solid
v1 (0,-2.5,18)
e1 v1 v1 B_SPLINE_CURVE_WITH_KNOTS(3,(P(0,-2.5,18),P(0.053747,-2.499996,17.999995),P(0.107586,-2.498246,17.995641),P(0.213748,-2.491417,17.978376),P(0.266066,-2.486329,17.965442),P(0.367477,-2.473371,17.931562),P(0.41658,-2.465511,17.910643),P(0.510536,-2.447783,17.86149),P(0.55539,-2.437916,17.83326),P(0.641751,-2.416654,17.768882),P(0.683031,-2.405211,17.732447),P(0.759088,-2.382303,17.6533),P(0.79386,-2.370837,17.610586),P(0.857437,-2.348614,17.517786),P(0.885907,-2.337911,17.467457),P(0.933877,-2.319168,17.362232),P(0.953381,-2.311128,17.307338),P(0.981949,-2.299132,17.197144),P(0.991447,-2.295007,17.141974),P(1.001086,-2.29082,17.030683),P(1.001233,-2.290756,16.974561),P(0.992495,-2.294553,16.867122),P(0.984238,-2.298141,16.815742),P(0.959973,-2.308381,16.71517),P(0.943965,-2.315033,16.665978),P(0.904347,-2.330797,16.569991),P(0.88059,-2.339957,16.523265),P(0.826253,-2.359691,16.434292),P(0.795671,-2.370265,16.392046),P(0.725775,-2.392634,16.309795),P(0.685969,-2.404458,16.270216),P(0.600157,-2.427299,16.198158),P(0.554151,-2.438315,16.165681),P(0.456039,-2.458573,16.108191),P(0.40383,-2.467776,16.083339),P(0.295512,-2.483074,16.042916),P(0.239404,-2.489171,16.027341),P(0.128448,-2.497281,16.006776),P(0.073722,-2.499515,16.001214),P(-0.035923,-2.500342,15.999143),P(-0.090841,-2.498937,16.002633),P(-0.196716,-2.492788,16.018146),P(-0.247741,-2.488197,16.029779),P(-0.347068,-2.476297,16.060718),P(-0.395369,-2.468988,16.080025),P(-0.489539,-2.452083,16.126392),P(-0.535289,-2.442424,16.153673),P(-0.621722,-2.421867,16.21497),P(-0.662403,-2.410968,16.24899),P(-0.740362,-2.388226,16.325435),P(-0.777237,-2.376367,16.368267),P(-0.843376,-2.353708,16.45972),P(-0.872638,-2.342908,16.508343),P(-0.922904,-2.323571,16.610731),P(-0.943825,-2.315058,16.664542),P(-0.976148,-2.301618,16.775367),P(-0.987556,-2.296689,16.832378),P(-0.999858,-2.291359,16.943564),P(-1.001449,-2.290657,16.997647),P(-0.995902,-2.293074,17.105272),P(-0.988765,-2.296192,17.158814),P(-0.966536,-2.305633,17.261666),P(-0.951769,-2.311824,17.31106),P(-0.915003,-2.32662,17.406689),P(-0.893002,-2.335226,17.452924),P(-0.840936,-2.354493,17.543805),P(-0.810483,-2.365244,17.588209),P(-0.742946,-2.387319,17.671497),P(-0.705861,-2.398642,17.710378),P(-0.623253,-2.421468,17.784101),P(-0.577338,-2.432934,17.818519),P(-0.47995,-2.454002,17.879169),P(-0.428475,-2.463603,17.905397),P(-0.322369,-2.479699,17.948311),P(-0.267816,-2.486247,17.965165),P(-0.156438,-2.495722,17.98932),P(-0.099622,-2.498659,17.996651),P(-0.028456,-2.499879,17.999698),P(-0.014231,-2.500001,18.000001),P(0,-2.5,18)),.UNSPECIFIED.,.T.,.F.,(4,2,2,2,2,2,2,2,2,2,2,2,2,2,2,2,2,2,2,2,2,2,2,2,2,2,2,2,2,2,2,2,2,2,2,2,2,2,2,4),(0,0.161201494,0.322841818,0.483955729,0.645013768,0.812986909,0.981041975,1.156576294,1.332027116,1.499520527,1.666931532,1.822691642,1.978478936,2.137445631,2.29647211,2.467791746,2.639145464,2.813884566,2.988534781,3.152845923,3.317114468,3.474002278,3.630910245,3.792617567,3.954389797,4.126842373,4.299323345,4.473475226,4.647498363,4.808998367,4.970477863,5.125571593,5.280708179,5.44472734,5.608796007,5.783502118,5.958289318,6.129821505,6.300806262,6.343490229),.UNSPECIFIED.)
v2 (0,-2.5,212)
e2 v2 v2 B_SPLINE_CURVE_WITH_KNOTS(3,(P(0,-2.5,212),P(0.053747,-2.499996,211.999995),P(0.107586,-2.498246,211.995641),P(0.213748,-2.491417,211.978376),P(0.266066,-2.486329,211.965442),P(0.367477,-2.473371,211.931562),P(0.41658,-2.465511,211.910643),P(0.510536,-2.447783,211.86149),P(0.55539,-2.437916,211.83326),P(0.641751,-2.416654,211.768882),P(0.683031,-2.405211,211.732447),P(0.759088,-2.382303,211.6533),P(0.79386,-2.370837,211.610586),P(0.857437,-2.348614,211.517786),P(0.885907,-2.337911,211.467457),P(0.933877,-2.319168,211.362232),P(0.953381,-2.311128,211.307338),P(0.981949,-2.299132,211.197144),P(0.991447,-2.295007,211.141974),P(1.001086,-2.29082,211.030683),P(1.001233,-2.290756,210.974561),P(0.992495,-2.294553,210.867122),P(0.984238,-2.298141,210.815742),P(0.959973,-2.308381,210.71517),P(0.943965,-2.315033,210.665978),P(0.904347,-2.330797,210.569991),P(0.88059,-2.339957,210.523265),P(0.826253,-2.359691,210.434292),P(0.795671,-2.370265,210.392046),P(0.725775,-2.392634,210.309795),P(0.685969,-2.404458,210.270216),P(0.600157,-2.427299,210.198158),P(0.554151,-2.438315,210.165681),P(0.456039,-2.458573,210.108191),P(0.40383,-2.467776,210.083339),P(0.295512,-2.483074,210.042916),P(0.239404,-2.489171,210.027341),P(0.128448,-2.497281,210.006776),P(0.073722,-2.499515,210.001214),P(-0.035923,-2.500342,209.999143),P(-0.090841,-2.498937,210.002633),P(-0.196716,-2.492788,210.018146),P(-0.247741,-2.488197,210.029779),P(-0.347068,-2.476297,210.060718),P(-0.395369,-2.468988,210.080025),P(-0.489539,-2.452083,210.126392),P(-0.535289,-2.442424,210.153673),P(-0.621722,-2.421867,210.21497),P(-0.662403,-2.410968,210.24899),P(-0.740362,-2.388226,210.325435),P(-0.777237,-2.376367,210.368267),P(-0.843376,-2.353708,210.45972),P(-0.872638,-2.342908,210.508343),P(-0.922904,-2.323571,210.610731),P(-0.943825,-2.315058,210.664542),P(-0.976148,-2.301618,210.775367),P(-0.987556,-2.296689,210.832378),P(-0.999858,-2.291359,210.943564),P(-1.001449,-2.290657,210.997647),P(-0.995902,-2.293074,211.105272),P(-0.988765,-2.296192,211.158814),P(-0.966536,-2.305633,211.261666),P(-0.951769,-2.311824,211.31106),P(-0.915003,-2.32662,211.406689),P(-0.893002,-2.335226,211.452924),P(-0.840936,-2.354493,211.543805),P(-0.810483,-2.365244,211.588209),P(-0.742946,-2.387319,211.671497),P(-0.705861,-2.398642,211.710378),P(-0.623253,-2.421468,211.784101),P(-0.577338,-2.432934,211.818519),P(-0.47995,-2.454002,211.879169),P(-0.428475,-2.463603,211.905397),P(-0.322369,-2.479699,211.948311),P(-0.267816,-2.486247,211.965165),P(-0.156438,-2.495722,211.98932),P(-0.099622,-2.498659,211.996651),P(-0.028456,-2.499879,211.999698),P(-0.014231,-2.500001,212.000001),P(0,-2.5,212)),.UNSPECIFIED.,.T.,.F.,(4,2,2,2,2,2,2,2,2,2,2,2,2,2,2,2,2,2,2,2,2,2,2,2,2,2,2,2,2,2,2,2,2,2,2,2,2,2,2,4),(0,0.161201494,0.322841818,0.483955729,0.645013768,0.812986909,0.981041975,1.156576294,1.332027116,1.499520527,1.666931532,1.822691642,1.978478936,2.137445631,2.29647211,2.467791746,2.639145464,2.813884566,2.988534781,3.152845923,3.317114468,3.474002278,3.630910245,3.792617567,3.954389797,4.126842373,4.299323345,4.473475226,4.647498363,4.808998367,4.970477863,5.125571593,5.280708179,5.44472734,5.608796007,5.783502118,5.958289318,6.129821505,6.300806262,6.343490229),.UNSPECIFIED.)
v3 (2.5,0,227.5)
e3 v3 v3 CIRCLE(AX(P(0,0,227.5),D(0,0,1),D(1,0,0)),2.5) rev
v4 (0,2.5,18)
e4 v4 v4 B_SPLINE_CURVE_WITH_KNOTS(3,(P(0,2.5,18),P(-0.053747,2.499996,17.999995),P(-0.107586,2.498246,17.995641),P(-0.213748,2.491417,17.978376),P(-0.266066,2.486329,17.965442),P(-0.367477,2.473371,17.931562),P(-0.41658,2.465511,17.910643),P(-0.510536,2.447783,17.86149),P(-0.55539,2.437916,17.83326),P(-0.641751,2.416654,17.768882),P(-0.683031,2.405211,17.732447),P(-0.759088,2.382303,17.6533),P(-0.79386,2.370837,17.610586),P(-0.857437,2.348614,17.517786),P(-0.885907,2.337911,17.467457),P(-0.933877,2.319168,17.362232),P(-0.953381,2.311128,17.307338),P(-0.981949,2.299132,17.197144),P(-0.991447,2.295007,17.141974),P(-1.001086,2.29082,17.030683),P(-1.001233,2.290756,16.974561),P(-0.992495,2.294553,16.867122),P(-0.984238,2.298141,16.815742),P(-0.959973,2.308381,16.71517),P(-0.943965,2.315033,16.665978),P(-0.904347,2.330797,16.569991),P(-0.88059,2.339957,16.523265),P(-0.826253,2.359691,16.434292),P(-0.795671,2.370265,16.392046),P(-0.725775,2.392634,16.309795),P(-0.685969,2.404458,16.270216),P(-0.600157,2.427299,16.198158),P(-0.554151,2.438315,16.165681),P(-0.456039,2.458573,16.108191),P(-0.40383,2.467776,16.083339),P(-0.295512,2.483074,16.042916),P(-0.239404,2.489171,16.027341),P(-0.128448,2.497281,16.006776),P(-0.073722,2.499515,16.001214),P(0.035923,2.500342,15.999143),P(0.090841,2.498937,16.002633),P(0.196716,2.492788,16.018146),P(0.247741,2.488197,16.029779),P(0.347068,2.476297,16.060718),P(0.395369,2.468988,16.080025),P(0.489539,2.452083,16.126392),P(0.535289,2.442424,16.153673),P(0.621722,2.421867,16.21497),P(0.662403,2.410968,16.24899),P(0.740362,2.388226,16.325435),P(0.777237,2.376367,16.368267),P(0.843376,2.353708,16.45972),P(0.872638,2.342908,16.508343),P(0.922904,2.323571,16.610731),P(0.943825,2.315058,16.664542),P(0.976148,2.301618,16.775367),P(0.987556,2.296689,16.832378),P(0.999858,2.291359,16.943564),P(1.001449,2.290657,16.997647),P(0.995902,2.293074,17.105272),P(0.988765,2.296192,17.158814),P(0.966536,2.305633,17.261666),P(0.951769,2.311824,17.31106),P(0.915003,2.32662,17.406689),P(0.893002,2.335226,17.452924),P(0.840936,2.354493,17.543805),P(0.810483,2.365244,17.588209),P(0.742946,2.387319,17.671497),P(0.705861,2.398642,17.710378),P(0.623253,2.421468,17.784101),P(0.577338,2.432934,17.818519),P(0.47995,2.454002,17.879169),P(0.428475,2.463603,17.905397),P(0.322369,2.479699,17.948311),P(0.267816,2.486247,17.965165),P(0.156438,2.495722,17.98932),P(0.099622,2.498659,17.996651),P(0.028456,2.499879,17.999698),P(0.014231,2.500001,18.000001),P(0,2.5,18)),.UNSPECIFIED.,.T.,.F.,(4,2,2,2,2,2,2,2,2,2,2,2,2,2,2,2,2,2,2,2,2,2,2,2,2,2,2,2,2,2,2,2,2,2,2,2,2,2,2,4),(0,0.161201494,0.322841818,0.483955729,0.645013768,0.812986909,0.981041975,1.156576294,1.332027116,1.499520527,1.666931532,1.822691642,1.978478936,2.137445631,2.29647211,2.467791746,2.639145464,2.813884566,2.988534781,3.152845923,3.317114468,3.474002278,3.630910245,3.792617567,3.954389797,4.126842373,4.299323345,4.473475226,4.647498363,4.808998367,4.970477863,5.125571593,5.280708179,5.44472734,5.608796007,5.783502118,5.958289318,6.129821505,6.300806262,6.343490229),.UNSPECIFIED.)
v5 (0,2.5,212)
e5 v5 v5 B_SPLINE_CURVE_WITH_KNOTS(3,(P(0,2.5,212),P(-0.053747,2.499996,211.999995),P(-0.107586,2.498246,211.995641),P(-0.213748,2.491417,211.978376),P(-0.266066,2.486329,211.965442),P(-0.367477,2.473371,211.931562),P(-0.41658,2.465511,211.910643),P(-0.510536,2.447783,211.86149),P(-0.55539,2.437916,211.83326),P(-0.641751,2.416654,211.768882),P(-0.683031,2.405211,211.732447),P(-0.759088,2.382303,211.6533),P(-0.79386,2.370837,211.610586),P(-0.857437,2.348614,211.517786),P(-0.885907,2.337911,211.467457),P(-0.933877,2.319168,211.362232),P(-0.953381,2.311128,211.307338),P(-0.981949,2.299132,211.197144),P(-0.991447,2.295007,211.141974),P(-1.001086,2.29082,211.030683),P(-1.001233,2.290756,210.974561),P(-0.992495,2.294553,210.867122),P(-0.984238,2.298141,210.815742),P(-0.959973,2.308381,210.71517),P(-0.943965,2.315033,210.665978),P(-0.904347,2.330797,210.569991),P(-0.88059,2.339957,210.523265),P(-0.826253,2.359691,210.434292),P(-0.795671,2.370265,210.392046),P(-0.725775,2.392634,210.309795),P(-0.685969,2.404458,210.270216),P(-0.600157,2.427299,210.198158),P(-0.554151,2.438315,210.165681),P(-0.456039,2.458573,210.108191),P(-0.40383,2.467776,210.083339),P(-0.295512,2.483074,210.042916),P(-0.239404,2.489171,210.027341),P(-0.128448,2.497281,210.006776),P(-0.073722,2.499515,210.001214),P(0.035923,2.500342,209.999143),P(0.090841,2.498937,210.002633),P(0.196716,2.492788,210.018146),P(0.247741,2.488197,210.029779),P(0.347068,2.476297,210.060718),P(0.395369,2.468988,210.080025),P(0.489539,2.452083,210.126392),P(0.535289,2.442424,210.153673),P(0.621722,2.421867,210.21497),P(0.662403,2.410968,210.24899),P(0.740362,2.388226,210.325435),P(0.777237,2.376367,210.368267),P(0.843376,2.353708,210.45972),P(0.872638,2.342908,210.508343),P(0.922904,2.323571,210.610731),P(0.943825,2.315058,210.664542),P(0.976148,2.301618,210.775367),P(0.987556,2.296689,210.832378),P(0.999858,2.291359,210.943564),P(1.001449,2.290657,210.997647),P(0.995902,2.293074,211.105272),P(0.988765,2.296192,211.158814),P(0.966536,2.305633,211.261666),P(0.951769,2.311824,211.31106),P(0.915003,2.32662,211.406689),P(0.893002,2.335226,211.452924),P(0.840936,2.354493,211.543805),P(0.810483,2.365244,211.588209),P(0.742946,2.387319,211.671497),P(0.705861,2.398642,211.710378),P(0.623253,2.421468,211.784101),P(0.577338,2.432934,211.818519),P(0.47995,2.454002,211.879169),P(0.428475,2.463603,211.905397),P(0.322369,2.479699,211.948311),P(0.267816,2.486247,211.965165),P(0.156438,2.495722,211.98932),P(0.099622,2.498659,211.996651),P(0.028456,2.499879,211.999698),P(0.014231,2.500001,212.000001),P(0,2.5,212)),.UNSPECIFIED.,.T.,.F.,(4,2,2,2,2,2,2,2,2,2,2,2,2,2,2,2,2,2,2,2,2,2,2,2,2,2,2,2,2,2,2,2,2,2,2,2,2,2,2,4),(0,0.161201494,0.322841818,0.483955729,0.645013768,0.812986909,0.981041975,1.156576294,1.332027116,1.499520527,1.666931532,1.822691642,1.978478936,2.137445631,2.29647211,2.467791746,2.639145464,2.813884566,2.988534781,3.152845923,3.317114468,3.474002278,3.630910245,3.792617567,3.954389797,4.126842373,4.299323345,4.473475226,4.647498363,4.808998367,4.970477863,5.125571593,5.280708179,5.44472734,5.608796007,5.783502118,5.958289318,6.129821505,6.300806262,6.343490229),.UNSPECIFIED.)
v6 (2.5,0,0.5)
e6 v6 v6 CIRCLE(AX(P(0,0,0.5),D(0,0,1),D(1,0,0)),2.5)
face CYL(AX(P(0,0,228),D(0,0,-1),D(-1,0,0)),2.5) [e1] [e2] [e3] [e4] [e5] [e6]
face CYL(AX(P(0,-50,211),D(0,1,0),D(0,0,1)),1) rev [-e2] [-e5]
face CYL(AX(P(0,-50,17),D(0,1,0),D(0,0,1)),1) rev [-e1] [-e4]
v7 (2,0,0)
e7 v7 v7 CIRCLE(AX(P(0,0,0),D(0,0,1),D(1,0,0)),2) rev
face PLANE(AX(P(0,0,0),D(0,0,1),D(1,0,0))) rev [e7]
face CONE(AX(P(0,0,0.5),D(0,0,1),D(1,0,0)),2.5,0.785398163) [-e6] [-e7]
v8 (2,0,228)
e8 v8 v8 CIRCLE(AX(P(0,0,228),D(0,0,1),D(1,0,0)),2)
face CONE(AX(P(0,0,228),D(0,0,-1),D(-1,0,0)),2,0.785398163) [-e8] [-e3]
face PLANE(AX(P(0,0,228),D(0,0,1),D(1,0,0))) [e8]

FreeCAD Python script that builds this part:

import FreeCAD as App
import Part
import Sketcher
Q = App.Units.Quantity


def edges_at(feature, points):
    """Names of the edges that pass closest to the given points."""
    edges = feature.Shape.Edges
    near = lambda p: min(range(len(edges)), key=lambda i: edges[i].distToShape(Part.Vertex(*p))[0])
    return sorted({f"Edge{near(p) + 1}" for p in points})

doc = App.newDocument("Part")
body = doc.addObject("PartDesign::Body", "Body")

# Sketch on XY plane
sketch1 = doc.addObject("Sketcher::SketchObject", "Sketch")
body.addObject(sketch1)
sketch1.AttachmentSupport = (doc.XY_Plane, [""])
sketch1.MapMode = "FlatFace"
sketch1.addGeometry(Part.Circle(App.Vector(0, 0, 0), App.Vector(0, 0, 1), 2.5), False)
sketch1.addConstraint([
    Sketcher.Constraint("Coincident", 0, 3, -1, 1),
    Sketcher.Constraint("Diameter", 0, Q("5 mm")),
])
pad1 = doc.addObject("PartDesign::Pad", "Pad")
body.addObject(pad1)
pad1.Profile = sketch1
pad1.Length = 228
doc.recompute()

chamfer = doc.addObject("PartDesign::Chamfer", "Chamfer")
body.addObject(chamfer)
chamfer.Base = (pad1, edges_at(pad1, [(-2.5, 0, 0), (-2.5, 0, 228)]))
chamfer.Size = 0.5

# Sketch on XZ plane
sketch2 = doc.addObject("Sketcher::SketchObject", "Sketch001")
body.addObject(sketch2)
sketch2.AttachmentSupport = (doc.XZ_Plane, [""])
sketch2.MapMode = "FlatFace"
sketch2.addGeometry([
    Part.Circle(App.Vector(0, 17, 0), App.Vector(0, 0, 1), 1),
    Part.Circle(App.Vector(0, 211, 0), App.Vector(0, 0, 1), 1),
], False)
sketch2.addConstraint([
    Sketcher.Constraint("Equal", 0, 1),
    Sketcher.Constraint("PointOnObject", 0, 3, -2),
    Sketcher.Constraint("PointOnObject", 1, 3, -2),
    Sketcher.Constraint("Diameter", 0, Q("2 mm")),
    Sketcher.Constraint("DistanceY", -1, 1, 0, 3, Q("17 mm")),
    Sketcher.Constraint("DistanceY", -1, 1, 1, 3, Q("211 mm")),
])
pocket1 = doc.addObject("PartDesign::Pocket", "Pocket")
body.addObject(pocket1)
pocket1.Profile = sketch2
pocket1.Length = 100
pocket1.Midplane = True

doc.recompute()
